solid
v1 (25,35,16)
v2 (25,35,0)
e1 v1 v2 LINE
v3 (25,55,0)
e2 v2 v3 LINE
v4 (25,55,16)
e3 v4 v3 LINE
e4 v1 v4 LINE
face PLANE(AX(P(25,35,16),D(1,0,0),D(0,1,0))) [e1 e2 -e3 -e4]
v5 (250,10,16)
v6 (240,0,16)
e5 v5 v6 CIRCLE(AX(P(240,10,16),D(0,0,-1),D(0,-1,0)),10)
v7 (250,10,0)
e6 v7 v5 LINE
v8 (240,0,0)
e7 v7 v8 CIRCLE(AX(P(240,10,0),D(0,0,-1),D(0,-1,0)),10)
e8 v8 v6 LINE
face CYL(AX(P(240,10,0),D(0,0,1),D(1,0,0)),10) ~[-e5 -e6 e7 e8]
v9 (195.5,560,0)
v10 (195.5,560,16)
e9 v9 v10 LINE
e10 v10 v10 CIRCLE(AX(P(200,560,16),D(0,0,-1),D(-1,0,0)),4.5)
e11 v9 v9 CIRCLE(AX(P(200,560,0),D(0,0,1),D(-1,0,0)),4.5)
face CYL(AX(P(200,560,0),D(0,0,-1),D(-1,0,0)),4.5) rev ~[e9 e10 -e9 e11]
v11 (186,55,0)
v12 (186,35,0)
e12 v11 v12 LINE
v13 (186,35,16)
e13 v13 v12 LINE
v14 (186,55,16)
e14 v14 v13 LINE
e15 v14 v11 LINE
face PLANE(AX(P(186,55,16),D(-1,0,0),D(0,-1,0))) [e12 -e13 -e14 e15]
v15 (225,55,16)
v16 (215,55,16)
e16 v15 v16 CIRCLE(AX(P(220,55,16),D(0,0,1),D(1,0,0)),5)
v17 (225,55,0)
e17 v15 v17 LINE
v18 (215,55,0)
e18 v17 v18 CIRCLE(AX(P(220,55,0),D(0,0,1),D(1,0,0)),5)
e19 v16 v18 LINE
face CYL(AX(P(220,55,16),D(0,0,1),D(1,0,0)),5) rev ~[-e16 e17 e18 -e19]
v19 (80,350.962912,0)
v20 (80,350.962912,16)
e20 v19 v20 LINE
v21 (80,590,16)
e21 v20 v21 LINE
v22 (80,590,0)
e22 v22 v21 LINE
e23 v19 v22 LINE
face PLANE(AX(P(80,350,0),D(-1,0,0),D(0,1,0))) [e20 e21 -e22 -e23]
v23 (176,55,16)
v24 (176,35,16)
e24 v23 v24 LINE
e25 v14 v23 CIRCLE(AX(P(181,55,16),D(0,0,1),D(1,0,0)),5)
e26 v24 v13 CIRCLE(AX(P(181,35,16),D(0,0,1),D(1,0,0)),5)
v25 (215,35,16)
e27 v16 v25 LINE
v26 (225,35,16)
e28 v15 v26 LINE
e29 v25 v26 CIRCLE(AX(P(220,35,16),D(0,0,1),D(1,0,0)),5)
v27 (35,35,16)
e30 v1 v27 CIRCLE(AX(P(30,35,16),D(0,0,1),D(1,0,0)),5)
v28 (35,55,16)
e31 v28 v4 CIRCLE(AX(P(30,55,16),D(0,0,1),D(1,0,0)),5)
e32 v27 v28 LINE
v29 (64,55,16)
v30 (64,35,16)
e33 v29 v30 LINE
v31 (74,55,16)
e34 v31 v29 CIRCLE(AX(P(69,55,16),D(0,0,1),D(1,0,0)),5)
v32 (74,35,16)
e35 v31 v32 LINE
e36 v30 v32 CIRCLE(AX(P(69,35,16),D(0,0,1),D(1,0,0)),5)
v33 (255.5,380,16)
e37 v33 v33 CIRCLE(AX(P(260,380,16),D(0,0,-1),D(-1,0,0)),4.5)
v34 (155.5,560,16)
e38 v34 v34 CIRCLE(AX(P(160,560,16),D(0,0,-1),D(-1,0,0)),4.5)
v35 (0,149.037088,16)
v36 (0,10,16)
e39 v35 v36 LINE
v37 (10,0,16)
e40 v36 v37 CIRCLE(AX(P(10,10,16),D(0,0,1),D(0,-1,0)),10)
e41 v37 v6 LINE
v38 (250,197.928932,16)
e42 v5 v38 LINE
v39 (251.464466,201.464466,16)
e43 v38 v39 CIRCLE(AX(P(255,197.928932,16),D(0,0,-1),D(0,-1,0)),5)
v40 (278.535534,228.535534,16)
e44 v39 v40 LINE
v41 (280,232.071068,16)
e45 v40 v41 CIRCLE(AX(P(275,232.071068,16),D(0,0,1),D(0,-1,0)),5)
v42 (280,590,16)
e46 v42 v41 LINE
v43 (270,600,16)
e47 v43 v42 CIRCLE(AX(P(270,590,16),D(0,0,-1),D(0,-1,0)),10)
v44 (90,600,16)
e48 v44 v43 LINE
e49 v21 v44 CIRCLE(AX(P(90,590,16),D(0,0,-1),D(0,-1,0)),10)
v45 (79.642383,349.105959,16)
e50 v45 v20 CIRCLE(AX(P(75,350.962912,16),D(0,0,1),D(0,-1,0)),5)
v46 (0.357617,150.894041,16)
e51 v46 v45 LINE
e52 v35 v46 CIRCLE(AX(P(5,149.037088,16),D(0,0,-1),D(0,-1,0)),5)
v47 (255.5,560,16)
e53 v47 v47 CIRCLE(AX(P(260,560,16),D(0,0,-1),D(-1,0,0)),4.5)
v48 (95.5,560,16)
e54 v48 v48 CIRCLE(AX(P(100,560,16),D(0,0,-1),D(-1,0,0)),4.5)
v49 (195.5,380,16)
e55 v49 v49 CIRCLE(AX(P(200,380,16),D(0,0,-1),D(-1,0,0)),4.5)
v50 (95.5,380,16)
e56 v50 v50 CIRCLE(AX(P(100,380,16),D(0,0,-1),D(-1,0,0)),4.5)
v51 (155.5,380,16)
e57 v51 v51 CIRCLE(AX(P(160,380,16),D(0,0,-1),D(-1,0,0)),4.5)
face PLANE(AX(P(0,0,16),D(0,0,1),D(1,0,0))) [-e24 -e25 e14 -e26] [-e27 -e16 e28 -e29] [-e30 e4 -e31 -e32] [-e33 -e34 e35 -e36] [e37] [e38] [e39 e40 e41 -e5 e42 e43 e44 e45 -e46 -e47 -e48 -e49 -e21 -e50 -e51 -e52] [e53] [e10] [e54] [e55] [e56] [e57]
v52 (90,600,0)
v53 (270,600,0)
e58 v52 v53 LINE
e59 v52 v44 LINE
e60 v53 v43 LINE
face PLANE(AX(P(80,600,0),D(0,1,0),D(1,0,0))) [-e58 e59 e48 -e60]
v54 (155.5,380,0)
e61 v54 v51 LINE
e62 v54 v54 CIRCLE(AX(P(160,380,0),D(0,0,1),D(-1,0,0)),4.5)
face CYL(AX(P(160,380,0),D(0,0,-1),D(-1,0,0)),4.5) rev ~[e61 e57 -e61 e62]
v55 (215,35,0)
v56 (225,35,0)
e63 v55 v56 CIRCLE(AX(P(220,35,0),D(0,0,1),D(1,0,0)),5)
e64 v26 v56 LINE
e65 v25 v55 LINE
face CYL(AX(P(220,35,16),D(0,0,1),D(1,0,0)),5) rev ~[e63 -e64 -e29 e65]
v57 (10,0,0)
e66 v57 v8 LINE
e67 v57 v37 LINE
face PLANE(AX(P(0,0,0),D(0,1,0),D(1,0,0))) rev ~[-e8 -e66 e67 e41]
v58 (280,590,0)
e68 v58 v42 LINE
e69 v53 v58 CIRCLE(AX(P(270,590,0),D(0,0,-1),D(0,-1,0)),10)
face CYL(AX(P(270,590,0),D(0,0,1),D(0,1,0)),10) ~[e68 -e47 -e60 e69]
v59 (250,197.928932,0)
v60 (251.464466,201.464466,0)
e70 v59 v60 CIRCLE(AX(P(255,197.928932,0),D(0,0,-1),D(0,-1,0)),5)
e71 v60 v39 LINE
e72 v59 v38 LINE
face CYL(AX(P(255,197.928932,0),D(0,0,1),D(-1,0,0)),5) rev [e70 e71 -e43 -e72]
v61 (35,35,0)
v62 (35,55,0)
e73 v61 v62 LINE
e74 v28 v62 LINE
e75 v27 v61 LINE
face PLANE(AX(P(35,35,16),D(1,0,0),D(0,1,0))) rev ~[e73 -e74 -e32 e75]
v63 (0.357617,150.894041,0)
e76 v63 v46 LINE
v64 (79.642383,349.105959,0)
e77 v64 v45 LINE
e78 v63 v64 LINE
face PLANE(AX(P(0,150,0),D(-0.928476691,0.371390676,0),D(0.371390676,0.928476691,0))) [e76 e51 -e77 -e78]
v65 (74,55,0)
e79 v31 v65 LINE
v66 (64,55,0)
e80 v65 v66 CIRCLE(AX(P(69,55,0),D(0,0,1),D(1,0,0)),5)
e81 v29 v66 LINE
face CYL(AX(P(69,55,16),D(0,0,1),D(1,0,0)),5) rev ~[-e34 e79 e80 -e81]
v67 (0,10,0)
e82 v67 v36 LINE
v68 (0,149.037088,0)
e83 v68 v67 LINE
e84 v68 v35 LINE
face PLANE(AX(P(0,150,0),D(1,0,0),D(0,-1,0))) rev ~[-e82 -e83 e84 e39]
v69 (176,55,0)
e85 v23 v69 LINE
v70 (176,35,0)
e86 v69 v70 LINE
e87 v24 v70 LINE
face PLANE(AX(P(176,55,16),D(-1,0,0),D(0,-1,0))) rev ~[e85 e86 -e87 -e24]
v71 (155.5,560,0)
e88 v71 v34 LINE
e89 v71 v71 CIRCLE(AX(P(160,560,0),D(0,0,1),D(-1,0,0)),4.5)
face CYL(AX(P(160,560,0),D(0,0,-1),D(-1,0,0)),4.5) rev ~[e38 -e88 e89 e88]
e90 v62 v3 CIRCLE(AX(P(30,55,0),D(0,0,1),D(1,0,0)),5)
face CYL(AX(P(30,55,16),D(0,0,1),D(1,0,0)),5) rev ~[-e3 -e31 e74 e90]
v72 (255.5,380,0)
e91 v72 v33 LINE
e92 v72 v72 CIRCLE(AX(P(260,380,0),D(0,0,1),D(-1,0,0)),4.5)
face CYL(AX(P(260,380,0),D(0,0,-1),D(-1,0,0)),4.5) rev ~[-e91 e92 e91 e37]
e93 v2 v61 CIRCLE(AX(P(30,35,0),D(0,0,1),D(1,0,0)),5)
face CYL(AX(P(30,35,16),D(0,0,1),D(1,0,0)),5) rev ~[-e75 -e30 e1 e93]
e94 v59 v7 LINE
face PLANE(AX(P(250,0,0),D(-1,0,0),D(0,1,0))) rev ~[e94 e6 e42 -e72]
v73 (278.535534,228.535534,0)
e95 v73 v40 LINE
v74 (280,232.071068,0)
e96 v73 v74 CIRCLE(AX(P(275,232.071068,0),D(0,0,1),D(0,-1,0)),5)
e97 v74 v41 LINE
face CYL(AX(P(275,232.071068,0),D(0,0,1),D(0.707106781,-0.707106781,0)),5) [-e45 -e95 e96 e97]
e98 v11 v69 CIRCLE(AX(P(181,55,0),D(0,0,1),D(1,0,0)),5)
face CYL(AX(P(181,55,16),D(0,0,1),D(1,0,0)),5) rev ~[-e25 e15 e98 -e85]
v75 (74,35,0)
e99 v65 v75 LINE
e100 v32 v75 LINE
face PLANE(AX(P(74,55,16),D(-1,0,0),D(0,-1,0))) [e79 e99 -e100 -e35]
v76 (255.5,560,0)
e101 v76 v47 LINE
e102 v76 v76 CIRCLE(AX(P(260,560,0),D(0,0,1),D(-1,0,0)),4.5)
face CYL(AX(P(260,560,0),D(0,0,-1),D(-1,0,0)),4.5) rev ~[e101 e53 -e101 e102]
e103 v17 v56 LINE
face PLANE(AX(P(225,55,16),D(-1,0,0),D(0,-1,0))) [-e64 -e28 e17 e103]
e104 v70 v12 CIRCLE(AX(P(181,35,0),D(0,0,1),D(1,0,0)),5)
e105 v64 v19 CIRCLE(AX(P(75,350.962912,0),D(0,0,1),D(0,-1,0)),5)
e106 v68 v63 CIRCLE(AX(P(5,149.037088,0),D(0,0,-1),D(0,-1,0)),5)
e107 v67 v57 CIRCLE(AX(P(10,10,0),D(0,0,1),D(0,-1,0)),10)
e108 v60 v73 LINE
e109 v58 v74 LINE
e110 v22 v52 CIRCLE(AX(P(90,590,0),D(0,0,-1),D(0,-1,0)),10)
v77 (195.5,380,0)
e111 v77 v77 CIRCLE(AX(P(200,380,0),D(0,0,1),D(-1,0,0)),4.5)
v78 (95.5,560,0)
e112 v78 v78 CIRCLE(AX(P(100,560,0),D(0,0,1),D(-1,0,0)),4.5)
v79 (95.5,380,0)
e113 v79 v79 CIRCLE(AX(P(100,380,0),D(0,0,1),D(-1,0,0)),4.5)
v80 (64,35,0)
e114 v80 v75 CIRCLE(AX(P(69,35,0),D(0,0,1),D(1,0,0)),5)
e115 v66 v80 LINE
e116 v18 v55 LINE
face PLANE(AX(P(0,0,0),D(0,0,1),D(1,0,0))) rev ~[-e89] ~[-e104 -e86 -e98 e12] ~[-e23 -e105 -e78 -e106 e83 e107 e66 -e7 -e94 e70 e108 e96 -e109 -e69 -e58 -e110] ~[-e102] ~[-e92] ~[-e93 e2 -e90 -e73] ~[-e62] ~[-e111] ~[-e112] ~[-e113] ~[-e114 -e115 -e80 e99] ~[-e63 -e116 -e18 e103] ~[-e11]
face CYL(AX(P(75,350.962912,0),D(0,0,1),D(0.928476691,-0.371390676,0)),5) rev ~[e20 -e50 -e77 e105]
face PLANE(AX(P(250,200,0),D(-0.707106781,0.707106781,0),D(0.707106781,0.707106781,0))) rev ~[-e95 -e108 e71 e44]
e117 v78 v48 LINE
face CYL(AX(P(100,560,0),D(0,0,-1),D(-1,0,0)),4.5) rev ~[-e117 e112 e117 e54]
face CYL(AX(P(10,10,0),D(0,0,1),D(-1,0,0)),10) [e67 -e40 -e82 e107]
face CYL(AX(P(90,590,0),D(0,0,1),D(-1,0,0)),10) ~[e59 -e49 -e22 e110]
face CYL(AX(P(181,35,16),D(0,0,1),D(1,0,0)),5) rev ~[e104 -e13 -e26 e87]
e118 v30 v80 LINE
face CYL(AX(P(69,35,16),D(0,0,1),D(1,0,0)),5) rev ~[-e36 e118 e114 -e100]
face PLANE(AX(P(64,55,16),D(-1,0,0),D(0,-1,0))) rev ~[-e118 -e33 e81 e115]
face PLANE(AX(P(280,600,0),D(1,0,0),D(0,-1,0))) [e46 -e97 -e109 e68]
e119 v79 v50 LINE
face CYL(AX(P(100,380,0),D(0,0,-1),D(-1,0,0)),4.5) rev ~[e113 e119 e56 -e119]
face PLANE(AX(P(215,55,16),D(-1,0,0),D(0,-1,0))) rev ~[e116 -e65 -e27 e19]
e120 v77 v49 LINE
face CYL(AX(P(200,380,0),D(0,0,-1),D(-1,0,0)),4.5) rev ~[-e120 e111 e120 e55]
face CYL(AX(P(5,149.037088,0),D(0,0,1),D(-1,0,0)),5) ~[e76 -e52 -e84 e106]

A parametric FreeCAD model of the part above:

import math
import FreeCAD as App
import Part
import Sketcher
Q = App.Units.Quantity


def edges_at(feature, points):
    """Names of the edges that pass closest to the given points."""
    edges = feature.Shape.Edges
    near = lambda p: min(range(len(edges)), key=lambda i: edges[i].distToShape(Part.Vertex(*p))[0])
    return sorted({f"Edge{near(p) + 1}" for p in points})


def add_polygon(sketch, points):
    """Adds a closed chain of lines whose ends are joined by coincident constraints."""
    first, n = sketch.GeometryCount, len(points)
    for a, b in zip(points, points[1:] + points[:1]):
        sketch.addGeometry(Part.LineSegment(App.Vector(*a, 0), App.Vector(*b, 0)), False)
    for i in range(n):
        sketch.addConstraint(Sketcher.Constraint("Coincident", first + i, 2, first + (i + 1) % n, 1))

doc = App.newDocument("Part")
body = doc.addObject("PartDesign::Body", "Body")

sketch1 = body.newObject("Sketcher::SketchObject", "Sketch")
sketch1.AttachmentSupport = (doc.getObject("XY_Plane"), [""])
sketch1.MapMode = "FlatFace"
add_polygon(sketch1, [(0, 150), (0, 0), (250, 0), (250, 200), (280, 230), (280, 600), (80, 600), (80, 350)])
sketch1.addConstraint([
    Sketcher.Constraint("Vertical", 0),
    Sketcher.Constraint("Horizontal", 1),
    Sketcher.Constraint("Vertical", 2),
    Sketcher.Constraint("Vertical", 4),
    Sketcher.Constraint("Horizontal", 5),
    Sketcher.Constraint("Vertical", 6),
    Sketcher.Constraint("Coincident", 0, 2, -1, 1),
    Sketcher.Constraint("Equal", 5, 2),
    Sketcher.Constraint("Equal", 1, 6),
    Sketcher.Constraint("DistanceX", 1, 1, 1, 2, Q("250 mm")),
    Sketcher.Constraint("DistanceX", 5, 2, 5, 1, Q("200 mm")),
    Sketcher.Constraint("DistanceY", 0, 2, 0, 1, Q("150 mm")),
    Sketcher.Constraint("DistanceY", -1, 1, 4, 2, Q("600 mm")),
    Sketcher.Constraint("DistanceX", -1, 1, 5, 2, Q("80 mm")),
    Sketcher.Constraint("DistanceY", 2, 2, 3, 2, Q("30 mm")),
])
pad1 = body.newObject("PartDesign::Pad", "Pad")
pad1.Profile = sketch1
pad1.Length = 16
doc.recompute()

fillet = body.newObject("PartDesign::Fillet", "Fillet")
fillet.Base = (pad1, edges_at(pad1, [
    (80, 600, 8),
    (280, 600, 8),
    (0, 0, 8),
    (250, 0, 8),
]))
fillet.Radius = 10

sketch2 = body.newObject("Sketcher::SketchObject", "Sketch001")
sketch2.AttachmentSupport = (doc.getObject("XY_Plane"), [""])
sketch2.MapMode = "FlatFace"
sketch2.AttachmentOffset = App.Placement(App.Vector(0, 0, 16), App.Rotation())
sketch2.addGeometry([
    Part.LineSegment(App.Vector(25, 55, 0), App.Vector(25, 35, 0)),
    Part.ArcOfCircle(Part.Circle(App.Vector(30, 35, 0), App.Vector(0, 0, 1), 5), math.radians(180), math.radians(360)),
    Part.LineSegment(App.Vector(35, 35, 0), App.Vector(35, 55, 0)),
    Part.ArcOfCircle(Part.Circle(App.Vector(30, 55, 0), App.Vector(0, 0, 1), 5), math.radians(0), math.radians(180)),
    Part.ArcOfCircle(Part.Circle(App.Vector(220, 35, 0), App.Vector(0, 0, 1), 5), math.radians(180), math.radians(360)),
    Part.LineSegment(App.Vector(225, 35, 0), App.Vector(225, 55, 0)),
    Part.ArcOfCircle(Part.Circle(App.Vector(220, 55, 0), App.Vector(0, 0, 1), 5), math.radians(0), math.radians(180)),
    Part.LineSegment(App.Vector(215, 55, 0), App.Vector(215, 35, 0)),
    Part.LineSegment(App.Vector(64, 55, 0), App.Vector(64, 35, 0)),
    Part.ArcOfCircle(Part.Circle(App.Vector(69, 35, 0), App.Vector(0, 0, 1), 5), math.radians(180), math.radians(360)),
    Part.LineSegment(App.Vector(74, 35, 0), App.Vector(74, 55, 0)),
    Part.ArcOfCircle(Part.Circle(App.Vector(69, 55, 0), App.Vector(0, 0, 1), 5), math.radians(0), math.radians(180)),
    Part.ArcOfCircle(Part.Circle(App.Vector(181, 35, 0), App.Vector(0, 0, 1), 5), math.radians(180), math.radians(360)),
    Part.LineSegment(App.Vector(186, 35, 0), App.Vector(186, 55, 0)),
    Part.ArcOfCircle(Part.Circle(App.Vector(181, 55, 0), App.Vector(0, 0, 1), 5), math.radians(0), math.radians(180)),
    Part.LineSegment(App.Vector(176, 55, 0), App.Vector(176, 35, 0)),
], False)
sketch2.addConstraint([
    Sketcher.Constraint("Tangent", 0, 2, 1, 1),
    Sketcher.Constraint("Tangent", 1, 2, 2, 1),
    Sketcher.Constraint("Tangent", 2, 2, 3, 1),
    Sketcher.Constraint("Tangent", 3, 2, 0, 1),
    Sketcher.Constraint("Tangent", 4, 2, 5, 1),
    Sketcher.Constraint("Tangent", 5, 2, 6, 1),
    Sketcher.Constraint("Tangent", 6, 2, 7, 1),
    Sketcher.Constraint("Tangent", 7, 2, 4, 1),
    Sketcher.Constraint("Tangent", 8, 2, 9, 1),
    Sketcher.Constraint("Tangent", 9, 2, 10, 1),
    Sketcher.Constraint("Tangent", 10, 2, 11, 1),
    Sketcher.Constraint("Tangent", 11, 2, 8, 1),
    Sketcher.Constraint("Tangent", 12, 2, 13, 1),
    Sketcher.Constraint("Tangent", 13, 2, 14, 1),
    Sketcher.Constraint("Tangent", 14, 2, 15, 1),
    Sketcher.Constraint("Tangent", 15, 2, 12, 1),
    Sketcher.Constraint("Vertical", 0),
    Sketcher.Constraint("Vertical", 2),
    Sketcher.Constraint("Vertical", 5),
    Sketcher.Constraint("Vertical", 7),
    Sketcher.Constraint("Vertical", 8),
    Sketcher.Constraint("Vertical", 10),
    Sketcher.Constraint("Vertical", 13),
    Sketcher.Constraint("Vertical", 15),
    Sketcher.Constraint("Equal", 3, 4),
    Sketcher.Constraint("Equal", 6, 9),
    Sketcher.Constraint("Equal", 11, 12),
    Sketcher.Constraint("Horizontal", 1, 3, 4, 3),
    Sketcher.Constraint("Horizontal", 3, 3, 6, 3),
    Sketcher.Constraint("Horizontal", 4, 3, 9, 3),
    Sketcher.Constraint("Horizontal", 6, 3, 11, 3),
    Sketcher.Constraint("Horizontal", 9, 3, 12, 3),
    Sketcher.Constraint("Horizontal", 11, 3, 14, 3),
    Sketcher.Constraint("Radius", 1, Q("5 mm")),
    Sketcher.Constraint("DistanceY", 0, 2, 0, 1, Q("20 mm")),
    Sketcher.Constraint("DistanceX", -1, 1, 1, 3, Q("30 mm")),
    Sketcher.Constraint("DistanceY", -1, 1, 1, 3, Q("35 mm")),
    Sketcher.Constraint("DistanceX", 1, 2, 8, 2, Q("29 mm")),
    Sketcher.Constraint("DistanceX", 12, 2, 7, 2, Q("29 mm")),
    Sketcher.Constraint("DistanceX", -1, 1, 4, 3, Q("220 mm")),
])
pocket1 = body.newObject("PartDesign::Pocket", "Pocket")
pocket1.Profile = sketch2
pocket1.Type = "ThroughAll"

sketch3 = body.newObject("Sketcher::SketchObject", "Sketch002")
sketch3.AttachmentSupport = (doc.getObject("XY_Plane"), [""])
sketch3.MapMode = "FlatFace"
sketch3.addGeometry([
    Part.Circle(App.Vector(260, 380, 0), App.Vector(0, 0, 1), 4.5),
    Part.Circle(App.Vector(260, 560, 0), App.Vector(0, 0, 1), 4.5),
    Part.Circle(App.Vector(200, 380, 0), App.Vector(0, 0, 1), 4.5),
    Part.Circle(App.Vector(200, 560, 0), App.Vector(0, 0, 1), 4.5),
    Part.Circle(App.Vector(160, 380, 0), App.Vector(0, 0, 1), 4.5),
    Part.Circle(App.Vector(160, 560, 0), App.Vector(0, 0, 1), 4.5),
    Part.Circle(App.Vector(100, 380, 0), App.Vector(0, 0, 1), 4.5),
    Part.Circle(App.Vector(100, 560, 0), App.Vector(0, 0, 1), 4.5),
], False)
sketch3.addConstraint([
    Sketcher.Constraint("Equal", 0, 1),
    Sketcher.Constraint("Equal", 1, 2),
    Sketcher.Constraint("Equal", 2, 3),
    Sketcher.Constraint("Equal", 3, 4),
    Sketcher.Constraint("Equal", 4, 5),
    Sketcher.Constraint("Equal", 5, 6),
    Sketcher.Constraint("Equal", 6, 7),
    Sketcher.Constraint("Horizontal", 0, 3, 2, 3),
    Sketcher.Constraint("Horizontal", 1, 3, 3, 3),
    Sketcher.Constraint("Horizontal", 2, 3, 4, 3),
    Sketcher.Constraint("Horizontal", 3, 3, 5, 3),
    Sketcher.Constraint("Horizontal", 4, 3, 6, 3),
    Sketcher.Constraint("Horizontal", 5, 3, 7, 3),
    Sketcher.Constraint("Vertical", 0, 3, 1, 3),
    Sketcher.Constraint("Vertical", 2, 3, 3, 3),
    Sketcher.Constraint("Vertical", 4, 3, 5, 3),
    Sketcher.Constraint("Vertical", 6, 3, 7, 3),
    Sketcher.Constraint("Diameter", 0, Q("9 mm")),
    Sketcher.Constraint("DistanceX", 2, 3, 0, 3, Q("60 mm")),
    Sketcher.Constraint("DistanceX", 4, 3, 2, 3, Q("40 mm")),
    Sketcher.Constraint("DistanceX", 6, 3, 4, 3, Q("60 mm")),
    Sketcher.Constraint("DistanceX", -1, 1, 0, 3, Q("260 mm")),
    Sketcher.Constraint("DistanceY", -1, 1, 0, 3, Q("380 mm")),
    Sketcher.Constraint("DistanceY", -1, 1, 1, 3, Q("560 mm")),
])
pocket2 = body.newObject("PartDesign::Pocket", "Pocket001")
pocket2.Profile = sketch3
pocket2.Type = "ThroughAll"
pocket2.Reversed = True
doc.recompute()

fillet2 = body.newObject("PartDesign::Fillet", "Fillet001")
fillet2.Base = (pocket2, edges_at(pocket2, [
    (280, 230, 8),
    (250, 200, 8),
    (0, 150, 8),
    (80, 350, 8),
]))
fillet2.Radius = 5

doc.recompute()
